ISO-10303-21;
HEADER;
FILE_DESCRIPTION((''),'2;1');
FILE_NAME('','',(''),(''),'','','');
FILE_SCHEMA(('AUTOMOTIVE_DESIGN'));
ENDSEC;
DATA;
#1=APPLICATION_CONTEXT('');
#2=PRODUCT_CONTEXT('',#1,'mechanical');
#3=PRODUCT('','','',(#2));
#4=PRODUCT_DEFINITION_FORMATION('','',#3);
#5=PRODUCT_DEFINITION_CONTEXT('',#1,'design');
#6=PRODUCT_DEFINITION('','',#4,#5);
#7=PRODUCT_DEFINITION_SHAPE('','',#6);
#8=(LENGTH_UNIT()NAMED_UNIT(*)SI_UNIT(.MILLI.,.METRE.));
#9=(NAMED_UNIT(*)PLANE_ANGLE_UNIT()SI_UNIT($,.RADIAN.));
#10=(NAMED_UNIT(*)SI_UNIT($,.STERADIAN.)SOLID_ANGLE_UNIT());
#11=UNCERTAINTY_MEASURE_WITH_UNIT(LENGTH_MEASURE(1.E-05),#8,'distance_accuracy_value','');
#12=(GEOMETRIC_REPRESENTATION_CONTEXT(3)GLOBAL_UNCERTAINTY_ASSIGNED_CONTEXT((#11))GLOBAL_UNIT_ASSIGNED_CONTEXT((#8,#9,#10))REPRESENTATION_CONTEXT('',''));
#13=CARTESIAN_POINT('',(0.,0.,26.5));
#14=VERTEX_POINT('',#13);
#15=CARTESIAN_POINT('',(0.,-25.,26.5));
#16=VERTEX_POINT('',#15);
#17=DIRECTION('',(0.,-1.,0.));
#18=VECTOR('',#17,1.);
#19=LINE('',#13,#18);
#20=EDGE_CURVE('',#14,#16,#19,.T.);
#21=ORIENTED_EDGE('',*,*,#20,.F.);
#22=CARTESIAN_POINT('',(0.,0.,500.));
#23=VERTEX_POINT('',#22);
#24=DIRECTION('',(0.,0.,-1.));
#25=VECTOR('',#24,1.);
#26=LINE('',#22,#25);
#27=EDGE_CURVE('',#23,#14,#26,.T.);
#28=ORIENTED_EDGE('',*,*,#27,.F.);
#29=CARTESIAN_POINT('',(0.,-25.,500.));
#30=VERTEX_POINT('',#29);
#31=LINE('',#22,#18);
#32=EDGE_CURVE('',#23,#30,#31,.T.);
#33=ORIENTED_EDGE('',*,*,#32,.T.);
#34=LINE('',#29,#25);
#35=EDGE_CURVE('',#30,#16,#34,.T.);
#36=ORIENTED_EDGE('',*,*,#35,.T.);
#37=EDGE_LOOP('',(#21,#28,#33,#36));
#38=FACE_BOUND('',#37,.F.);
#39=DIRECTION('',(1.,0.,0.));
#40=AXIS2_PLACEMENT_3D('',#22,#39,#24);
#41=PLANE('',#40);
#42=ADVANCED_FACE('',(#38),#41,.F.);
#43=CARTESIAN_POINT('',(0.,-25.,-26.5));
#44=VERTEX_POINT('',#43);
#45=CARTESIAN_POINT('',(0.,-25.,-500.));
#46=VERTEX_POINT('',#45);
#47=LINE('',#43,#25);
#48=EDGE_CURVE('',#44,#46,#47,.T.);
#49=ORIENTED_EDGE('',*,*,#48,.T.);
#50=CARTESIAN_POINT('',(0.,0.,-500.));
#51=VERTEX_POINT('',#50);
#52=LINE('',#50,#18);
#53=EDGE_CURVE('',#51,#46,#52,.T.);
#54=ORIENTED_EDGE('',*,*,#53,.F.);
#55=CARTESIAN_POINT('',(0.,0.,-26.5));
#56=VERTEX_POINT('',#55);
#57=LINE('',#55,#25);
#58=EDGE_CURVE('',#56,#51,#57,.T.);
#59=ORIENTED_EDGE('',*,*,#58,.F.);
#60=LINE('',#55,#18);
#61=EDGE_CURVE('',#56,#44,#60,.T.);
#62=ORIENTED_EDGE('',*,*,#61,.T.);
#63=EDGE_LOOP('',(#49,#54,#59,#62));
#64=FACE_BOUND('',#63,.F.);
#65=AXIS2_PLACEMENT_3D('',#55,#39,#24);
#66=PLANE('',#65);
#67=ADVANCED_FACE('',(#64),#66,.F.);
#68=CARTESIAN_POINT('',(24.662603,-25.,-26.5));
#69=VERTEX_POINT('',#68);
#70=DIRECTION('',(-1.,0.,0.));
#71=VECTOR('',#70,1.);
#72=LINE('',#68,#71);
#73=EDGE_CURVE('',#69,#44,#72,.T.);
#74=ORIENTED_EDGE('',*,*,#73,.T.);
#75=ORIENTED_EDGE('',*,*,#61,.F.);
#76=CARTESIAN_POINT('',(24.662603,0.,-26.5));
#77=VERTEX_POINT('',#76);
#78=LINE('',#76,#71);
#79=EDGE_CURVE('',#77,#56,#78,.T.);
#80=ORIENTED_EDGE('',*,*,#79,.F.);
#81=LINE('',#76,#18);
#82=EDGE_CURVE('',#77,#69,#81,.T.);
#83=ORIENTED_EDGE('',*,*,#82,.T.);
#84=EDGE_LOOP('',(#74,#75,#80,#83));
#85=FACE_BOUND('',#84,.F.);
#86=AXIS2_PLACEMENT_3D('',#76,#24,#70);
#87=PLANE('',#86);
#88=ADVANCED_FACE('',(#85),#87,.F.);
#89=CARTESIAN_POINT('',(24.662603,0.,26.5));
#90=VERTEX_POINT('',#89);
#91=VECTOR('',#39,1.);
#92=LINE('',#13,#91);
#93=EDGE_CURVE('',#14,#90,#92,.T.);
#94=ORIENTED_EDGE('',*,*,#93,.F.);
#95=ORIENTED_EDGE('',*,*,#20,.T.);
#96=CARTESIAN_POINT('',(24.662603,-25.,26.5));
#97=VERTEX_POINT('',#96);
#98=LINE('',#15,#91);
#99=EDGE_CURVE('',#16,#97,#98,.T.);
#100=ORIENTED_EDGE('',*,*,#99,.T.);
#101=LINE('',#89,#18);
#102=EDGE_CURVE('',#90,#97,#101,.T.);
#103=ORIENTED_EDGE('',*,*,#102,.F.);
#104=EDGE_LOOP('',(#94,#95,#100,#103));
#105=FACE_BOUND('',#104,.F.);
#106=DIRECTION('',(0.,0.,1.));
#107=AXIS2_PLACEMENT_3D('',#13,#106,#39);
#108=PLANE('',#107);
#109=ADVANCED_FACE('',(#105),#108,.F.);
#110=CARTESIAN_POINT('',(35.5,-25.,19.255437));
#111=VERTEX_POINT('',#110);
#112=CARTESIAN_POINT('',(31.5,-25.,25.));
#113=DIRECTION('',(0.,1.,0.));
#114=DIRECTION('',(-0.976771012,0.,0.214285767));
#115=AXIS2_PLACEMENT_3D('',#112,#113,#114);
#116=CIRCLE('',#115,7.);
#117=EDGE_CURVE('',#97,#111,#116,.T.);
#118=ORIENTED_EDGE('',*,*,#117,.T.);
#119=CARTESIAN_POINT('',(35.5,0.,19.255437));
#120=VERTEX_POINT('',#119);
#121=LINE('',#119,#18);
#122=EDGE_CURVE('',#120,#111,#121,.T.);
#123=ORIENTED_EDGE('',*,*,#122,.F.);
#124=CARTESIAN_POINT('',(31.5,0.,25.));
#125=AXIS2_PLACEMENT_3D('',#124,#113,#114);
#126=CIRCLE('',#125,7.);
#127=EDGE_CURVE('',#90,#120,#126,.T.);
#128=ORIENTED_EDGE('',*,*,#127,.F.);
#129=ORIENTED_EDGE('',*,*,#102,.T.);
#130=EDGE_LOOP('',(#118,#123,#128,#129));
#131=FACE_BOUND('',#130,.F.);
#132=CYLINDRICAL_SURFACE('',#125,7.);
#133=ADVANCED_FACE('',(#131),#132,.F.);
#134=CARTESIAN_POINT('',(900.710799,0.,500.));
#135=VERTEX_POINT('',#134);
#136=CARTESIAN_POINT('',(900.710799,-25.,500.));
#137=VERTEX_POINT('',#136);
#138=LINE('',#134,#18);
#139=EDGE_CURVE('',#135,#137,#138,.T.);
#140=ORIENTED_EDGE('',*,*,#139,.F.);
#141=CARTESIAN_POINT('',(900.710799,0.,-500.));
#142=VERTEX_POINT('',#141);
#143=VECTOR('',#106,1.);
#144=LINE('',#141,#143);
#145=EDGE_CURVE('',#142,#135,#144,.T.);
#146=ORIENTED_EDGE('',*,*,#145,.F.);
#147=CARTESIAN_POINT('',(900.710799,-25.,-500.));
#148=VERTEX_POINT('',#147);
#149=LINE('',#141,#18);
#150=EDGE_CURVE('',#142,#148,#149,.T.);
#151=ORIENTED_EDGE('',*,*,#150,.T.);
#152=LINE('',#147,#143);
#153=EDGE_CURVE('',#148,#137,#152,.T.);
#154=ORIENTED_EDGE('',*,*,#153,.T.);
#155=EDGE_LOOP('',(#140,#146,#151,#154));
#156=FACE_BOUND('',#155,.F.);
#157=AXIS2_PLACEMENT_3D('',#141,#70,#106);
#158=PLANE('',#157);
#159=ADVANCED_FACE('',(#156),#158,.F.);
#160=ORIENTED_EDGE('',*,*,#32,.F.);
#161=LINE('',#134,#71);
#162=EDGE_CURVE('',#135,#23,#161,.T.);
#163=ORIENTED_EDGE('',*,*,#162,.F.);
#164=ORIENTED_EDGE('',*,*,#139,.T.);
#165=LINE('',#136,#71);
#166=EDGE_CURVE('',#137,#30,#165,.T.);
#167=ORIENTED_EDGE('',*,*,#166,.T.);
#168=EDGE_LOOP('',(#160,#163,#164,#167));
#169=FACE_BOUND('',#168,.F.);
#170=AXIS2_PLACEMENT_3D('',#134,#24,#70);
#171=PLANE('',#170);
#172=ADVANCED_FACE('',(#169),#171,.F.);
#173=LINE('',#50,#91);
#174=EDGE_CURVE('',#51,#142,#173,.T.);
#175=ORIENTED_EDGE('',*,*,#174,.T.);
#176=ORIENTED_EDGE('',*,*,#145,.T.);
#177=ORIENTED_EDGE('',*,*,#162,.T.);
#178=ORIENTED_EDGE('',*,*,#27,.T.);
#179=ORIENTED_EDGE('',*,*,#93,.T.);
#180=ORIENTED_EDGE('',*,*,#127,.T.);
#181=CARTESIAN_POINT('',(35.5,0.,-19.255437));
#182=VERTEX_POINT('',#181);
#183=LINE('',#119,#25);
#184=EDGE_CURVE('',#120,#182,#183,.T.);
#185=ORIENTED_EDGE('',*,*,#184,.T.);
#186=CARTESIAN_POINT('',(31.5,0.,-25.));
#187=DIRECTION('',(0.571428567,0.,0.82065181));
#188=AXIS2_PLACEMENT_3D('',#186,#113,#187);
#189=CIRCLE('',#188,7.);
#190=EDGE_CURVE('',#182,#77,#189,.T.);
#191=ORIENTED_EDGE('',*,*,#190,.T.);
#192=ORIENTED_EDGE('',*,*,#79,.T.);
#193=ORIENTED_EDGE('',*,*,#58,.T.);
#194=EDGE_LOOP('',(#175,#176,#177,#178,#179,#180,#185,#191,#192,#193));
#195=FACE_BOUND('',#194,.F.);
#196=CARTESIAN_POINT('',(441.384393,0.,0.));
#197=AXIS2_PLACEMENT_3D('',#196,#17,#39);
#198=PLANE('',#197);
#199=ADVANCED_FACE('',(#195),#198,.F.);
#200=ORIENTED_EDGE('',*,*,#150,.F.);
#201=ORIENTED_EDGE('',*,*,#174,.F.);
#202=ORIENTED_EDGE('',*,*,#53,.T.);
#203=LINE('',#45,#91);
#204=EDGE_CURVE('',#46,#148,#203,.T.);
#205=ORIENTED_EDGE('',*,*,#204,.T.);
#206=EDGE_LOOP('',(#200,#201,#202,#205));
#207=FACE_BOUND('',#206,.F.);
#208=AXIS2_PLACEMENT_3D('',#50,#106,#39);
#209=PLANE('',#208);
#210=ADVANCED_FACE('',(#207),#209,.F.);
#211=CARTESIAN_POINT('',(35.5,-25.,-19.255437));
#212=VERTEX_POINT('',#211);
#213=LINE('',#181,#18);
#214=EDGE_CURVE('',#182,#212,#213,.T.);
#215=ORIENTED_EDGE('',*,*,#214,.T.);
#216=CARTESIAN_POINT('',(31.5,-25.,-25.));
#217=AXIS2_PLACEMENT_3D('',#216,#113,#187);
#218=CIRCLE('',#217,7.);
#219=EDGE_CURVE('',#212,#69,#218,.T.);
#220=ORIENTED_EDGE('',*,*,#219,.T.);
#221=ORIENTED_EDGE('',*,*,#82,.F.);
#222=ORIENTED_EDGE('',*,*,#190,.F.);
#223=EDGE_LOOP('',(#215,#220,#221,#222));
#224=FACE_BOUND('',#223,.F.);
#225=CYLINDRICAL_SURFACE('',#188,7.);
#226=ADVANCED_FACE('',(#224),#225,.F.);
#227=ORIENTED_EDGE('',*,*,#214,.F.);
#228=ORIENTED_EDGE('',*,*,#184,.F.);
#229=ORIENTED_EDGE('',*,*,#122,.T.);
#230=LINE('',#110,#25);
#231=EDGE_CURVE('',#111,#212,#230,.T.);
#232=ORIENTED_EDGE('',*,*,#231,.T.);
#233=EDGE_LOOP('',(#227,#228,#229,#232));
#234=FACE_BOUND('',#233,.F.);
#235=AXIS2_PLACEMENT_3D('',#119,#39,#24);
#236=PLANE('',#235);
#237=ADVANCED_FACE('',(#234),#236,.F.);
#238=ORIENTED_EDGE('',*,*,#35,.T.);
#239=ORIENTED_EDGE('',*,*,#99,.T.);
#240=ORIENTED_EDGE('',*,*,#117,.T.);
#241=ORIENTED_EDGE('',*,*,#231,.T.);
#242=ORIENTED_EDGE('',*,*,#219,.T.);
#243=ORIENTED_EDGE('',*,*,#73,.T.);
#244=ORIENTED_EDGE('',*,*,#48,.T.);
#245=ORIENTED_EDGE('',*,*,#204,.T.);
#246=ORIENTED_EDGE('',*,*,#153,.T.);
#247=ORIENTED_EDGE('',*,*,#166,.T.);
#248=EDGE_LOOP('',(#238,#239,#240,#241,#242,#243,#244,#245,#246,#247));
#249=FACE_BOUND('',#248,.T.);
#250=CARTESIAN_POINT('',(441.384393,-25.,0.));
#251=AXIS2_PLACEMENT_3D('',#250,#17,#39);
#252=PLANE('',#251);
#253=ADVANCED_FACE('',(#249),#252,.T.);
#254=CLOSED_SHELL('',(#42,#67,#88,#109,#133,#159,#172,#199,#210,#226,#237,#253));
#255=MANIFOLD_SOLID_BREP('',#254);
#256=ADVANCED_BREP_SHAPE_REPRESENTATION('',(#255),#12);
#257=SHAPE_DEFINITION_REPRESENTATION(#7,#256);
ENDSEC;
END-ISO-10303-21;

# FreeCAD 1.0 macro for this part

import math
import FreeCAD as App
import Part
import Sketcher

V = App.Vector
Q = App.Units.Quantity

doc = App.newDocument("Part")
body = doc.addObject("PartDesign::Body", "Body")

# Sketch on XZ plane
sketch1 = doc.addObject("Sketcher::SketchObject", "Sketch")
body.addObject(sketch1)
sketch1.AttachmentSupport = (doc.XZ_Plane, [""])
sketch1.MapMode = "FlatFace"
sketch1.addGeometry(Part.LineSegment(V(901, 500, 0), V(0, 500, 0)), False)
sketch1.addGeometry(Part.LineSegment(V(0, 500, 0), V(0, 26, 0)), False)
sketch1.addGeometry(Part.LineSegment(V(0, 26, 0), V(25, 26, 0)), False)
sketch1.addGeometry(Part.ArcOfCircle(Part.Circle(V(32, 25, 0), V(0, 0, 1), 7), math.radians(-55), math.radians(168)), False)
sketch1.addGeometry(Part.LineSegment(V(36, 19, 0), V(36, -19, 0)), False)
sketch1.addGeometry(Part.ArcOfCircle(Part.Circle(V(32, -25, 0), V(0, 0, 1), 7), math.radians(-168), math.radians(55)), False)
sketch1.addGeometry(Part.LineSegment(V(25, -26, 0), V(0, -26, 0)), False)
sketch1.addGeometry(Part.LineSegment(V(0, -26, 0), V(0, -500, 0)), False)
sketch1.addGeometry(Part.LineSegment(V(0, -500, 0), V(901, -500, 0)), False)
sketch1.addGeometry(Part.LineSegment(V(901, -500, 0), V(901, 500, 0)), False)
sketch1.addConstraint(Sketcher.Constraint("Coincident", 0, 2, 1, 1))
sketch1.addConstraint(Sketcher.Constraint("Coincident", 1, 2, 2, 1))
sketch1.addConstraint(Sketcher.Constraint("Coincident", 2, 2, 3, 2))
sketch1.addConstraint(Sketcher.Constraint("Coincident", 3, 1, 4, 1))
sketch1.addConstraint(Sketcher.Constraint("Coincident", 4, 2, 5, 2))
sketch1.addConstraint(Sketcher.Constraint("Coincident", 5, 1, 6, 1))
sketch1.addConstraint(Sketcher.Constraint("Coincident", 6, 2, 7, 1))
sketch1.addConstraint(Sketcher.Constraint("Coincident", 7, 2, 8, 1))
sketch1.addConstraint(Sketcher.Constraint("Coincident", 8, 2, 9, 1))
sketch1.addConstraint(Sketcher.Constraint("Coincident", 9, 2, 0, 1))
sketch1.addConstraint(Sketcher.Constraint("Horizontal", 0))
sketch1.addConstraint(Sketcher.Constraint("Vertical", 1))
sketch1.addConstraint(Sketcher.Constraint("Horizontal", 2))
sketch1.addConstraint(Sketcher.Constraint("Vertical", 4))
sketch1.addConstraint(Sketcher.Constraint("Horizontal", 6))
sketch1.addConstraint(Sketcher.Constraint("Vertical", 7))
sketch1.addConstraint(Sketcher.Constraint("Horizontal", 8))
sketch1.addConstraint(Sketcher.Constraint("Vertical", 9))
sketch1.addConstraint(Sketcher.Constraint("Equal", 3, 5))
sketch1.addConstraint(Sketcher.Constraint("Symmetric", 1, 2, 6, 2, -1, 1))
sketch1.addConstraint(Sketcher.Constraint("Symmetric", 3, 3, 5, 3, -1))
sketch1.addConstraint(Sketcher.Constraint("Symmetric", 0, 2, 7, 2, -1))
sketch1.addConstraint(Sketcher.Constraint("Radius", 3, Q("7 mm")))
sketch1.addConstraint(Sketcher.Constraint("DistanceY", 9, 1, 9, 2, Q("1000 mm")))
sketch1.addConstraint(Sketcher.Constraint("DistanceY", 1, 2, 1, 1, Q("473.5 mm")))
sketch1.addConstraint(Sketcher.Constraint("DistanceY", -1, 1, 3, 3, Q("25 mm")))
sketch1.addConstraint(Sketcher.Constraint("DistanceX", 3, 3, 3, 1, Q("4 mm")))
sketch1.addConstraint(Sketcher.Constraint("DistanceX", -1, 1, 3, 3, Q("31.5 mm")))
sketch1.addConstraint(Sketcher.Constraint("DistanceX", 0, 2, 0, 1, Q("900.710799 mm")))
pad1 = doc.addObject("PartDesign::Pad", "Pad")
body.addObject(pad1)
pad1.Profile = sketch1
pad1.Length = 25

doc.recompute()
